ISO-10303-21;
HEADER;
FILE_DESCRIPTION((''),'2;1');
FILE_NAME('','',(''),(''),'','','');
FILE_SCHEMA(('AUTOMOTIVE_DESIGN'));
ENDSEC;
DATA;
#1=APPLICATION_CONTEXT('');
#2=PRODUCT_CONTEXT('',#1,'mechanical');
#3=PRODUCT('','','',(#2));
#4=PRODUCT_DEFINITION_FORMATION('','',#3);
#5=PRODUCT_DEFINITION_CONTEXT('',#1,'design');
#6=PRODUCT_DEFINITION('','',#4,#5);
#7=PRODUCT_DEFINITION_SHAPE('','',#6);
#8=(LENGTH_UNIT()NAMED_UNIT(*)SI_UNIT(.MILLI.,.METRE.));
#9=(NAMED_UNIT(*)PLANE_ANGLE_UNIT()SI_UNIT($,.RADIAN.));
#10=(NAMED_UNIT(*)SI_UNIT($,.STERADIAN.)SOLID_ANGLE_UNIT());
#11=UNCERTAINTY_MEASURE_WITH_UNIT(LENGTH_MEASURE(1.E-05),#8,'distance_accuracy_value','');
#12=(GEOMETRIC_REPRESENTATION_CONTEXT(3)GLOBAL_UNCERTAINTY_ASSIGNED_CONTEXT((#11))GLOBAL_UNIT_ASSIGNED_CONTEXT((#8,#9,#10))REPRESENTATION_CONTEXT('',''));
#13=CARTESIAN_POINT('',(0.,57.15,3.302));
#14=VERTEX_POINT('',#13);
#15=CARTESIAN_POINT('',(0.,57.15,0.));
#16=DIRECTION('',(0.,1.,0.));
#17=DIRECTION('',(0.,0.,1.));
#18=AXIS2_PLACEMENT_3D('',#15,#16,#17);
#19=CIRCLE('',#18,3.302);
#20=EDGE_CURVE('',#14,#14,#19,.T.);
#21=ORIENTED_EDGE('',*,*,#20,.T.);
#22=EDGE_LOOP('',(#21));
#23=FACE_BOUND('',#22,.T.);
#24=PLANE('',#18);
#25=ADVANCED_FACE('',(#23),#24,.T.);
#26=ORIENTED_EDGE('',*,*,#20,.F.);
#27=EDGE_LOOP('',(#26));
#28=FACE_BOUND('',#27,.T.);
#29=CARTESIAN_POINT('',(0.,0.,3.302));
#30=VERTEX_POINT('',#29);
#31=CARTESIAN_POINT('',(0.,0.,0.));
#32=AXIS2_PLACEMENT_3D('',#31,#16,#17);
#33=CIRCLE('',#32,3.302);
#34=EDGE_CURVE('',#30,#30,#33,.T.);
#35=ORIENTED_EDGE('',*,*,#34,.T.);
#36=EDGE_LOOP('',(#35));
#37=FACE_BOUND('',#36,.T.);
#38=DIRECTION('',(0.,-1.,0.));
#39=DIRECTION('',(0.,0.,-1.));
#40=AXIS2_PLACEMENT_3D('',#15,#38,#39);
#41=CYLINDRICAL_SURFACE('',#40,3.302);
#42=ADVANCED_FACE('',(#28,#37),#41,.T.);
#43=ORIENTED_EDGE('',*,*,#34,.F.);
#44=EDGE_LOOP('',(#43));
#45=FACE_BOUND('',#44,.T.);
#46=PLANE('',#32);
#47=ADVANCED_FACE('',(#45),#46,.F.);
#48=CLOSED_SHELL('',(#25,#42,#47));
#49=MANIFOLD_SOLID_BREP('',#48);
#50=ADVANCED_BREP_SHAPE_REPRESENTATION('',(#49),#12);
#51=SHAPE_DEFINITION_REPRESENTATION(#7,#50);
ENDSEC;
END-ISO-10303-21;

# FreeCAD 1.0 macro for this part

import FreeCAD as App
import Part
import Sketcher
from FreeCAD import Vector
Q = App.Units.Quantity

doc = App.newDocument("Part")
body = doc.addObject("PartDesign::Body", "Body")

# Sketch on XZ plane
sketch1 = body.newObject("Sketcher::SketchObject", "Sketch")
sketch1.AttachmentSupport = (doc.getObject("XZ_Plane"), [""])
sketch1.MapMode = "FlatFace"
sketch1.addGeometry(Part.Circle(Vector(0, 0, 0), Vector(0, 0, 1), 3.3), False)
sketch1.addConstraint([
    Sketcher.Constraint("Coincident", 0, 3, -1, 1),
    Sketcher.Constraint("Diameter", 0, Q("0.26 in")),
])
pad1 = body.newObject("PartDesign::Pad", "Pad")
pad1.Profile = sketch1
pad1.Length = Q("2.25 in")
pad1.Reversed = True

doc.recompute()
